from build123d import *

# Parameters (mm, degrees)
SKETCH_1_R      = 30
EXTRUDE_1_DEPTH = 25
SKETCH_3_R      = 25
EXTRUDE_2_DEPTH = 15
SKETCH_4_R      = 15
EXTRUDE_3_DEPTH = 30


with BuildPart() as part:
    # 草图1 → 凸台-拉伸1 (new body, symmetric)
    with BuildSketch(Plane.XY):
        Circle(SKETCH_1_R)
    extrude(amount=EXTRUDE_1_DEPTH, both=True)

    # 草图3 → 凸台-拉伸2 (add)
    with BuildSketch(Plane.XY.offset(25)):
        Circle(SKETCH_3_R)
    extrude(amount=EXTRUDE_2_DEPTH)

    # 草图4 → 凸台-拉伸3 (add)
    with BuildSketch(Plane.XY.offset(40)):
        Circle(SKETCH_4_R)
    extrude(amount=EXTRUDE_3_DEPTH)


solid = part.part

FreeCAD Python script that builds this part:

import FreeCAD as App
import Part
import Sketcher

doc = App.newDocument("Part")
body = doc.addObject("PartDesign::Body", "Body")

sketch1 = body.newObject("Sketcher::SketchObject", "Sketch")
sketch1.AttachmentSupport = (doc.getObject("XY_Plane"), [""])
sketch1.MapMode = "FlatFace"
sketch1.addGeometry(Part.Circle(App.Vector(0, 0, 0), App.Vector(0, 0, 1), 30), False)
sketch1.addConstraint([
    Sketcher.Constraint("Coincident", 0, 3, -1, 1),
    Sketcher.Constraint("Diameter", 0, 60.0),
])
pad1 = body.newObject("PartDesign::Pad", "Pad")
pad1.Profile = sketch1
pad1.Length = 50
pad1.Midplane = True

sketch2 = body.newObject("Sketcher::SketchObject", "Sketch001")
sketch2.AttachmentSupport = (doc.getObject("XY_Plane"), [""])
sketch2.MapMode = "FlatFace"
sketch2.AttachmentOffset = App.Placement(App.Vector(0, 0, 25), App.Rotation())
sketch2.addGeometry(Part.Circle(App.Vector(0, 0, 0), App.Vector(0, 0, 1), 25), False)
sketch2.addConstraint([
    Sketcher.Constraint("Coincident", 0, 3, -1, 1),
    Sketcher.Constraint("Diameter", 0, 50.0),
])
pad2 = body.newObject("PartDesign::Pad", "Pad001")
pad2.Profile = sketch2
pad2.Length = 15

sketch3 = body.newObject("Sketcher::SketchObject", "Sketch002")
sketch3.AttachmentSupport = (doc.getObject("XY_Plane"), [""])
sketch3.MapMode = "FlatFace"
sketch3.AttachmentOffset = App.Placement(App.Vector(0, 0, 40), App.Rotation())
sketch3.addGeometry(Part.Circle(App.Vector(0, 0, 0), App.Vector(0, 0, 1), 15), False)
sketch3.addConstraint([
    Sketcher.Constraint("Coincident", 0, 3, -1, 1),
    Sketcher.Constraint("Diameter", 0, 30.0),
])
pad3 = body.newObject("PartDesign::Pad", "Pad002")
pad3.Profile = sketch3
pad3.Length = 30

doc.recompute()
